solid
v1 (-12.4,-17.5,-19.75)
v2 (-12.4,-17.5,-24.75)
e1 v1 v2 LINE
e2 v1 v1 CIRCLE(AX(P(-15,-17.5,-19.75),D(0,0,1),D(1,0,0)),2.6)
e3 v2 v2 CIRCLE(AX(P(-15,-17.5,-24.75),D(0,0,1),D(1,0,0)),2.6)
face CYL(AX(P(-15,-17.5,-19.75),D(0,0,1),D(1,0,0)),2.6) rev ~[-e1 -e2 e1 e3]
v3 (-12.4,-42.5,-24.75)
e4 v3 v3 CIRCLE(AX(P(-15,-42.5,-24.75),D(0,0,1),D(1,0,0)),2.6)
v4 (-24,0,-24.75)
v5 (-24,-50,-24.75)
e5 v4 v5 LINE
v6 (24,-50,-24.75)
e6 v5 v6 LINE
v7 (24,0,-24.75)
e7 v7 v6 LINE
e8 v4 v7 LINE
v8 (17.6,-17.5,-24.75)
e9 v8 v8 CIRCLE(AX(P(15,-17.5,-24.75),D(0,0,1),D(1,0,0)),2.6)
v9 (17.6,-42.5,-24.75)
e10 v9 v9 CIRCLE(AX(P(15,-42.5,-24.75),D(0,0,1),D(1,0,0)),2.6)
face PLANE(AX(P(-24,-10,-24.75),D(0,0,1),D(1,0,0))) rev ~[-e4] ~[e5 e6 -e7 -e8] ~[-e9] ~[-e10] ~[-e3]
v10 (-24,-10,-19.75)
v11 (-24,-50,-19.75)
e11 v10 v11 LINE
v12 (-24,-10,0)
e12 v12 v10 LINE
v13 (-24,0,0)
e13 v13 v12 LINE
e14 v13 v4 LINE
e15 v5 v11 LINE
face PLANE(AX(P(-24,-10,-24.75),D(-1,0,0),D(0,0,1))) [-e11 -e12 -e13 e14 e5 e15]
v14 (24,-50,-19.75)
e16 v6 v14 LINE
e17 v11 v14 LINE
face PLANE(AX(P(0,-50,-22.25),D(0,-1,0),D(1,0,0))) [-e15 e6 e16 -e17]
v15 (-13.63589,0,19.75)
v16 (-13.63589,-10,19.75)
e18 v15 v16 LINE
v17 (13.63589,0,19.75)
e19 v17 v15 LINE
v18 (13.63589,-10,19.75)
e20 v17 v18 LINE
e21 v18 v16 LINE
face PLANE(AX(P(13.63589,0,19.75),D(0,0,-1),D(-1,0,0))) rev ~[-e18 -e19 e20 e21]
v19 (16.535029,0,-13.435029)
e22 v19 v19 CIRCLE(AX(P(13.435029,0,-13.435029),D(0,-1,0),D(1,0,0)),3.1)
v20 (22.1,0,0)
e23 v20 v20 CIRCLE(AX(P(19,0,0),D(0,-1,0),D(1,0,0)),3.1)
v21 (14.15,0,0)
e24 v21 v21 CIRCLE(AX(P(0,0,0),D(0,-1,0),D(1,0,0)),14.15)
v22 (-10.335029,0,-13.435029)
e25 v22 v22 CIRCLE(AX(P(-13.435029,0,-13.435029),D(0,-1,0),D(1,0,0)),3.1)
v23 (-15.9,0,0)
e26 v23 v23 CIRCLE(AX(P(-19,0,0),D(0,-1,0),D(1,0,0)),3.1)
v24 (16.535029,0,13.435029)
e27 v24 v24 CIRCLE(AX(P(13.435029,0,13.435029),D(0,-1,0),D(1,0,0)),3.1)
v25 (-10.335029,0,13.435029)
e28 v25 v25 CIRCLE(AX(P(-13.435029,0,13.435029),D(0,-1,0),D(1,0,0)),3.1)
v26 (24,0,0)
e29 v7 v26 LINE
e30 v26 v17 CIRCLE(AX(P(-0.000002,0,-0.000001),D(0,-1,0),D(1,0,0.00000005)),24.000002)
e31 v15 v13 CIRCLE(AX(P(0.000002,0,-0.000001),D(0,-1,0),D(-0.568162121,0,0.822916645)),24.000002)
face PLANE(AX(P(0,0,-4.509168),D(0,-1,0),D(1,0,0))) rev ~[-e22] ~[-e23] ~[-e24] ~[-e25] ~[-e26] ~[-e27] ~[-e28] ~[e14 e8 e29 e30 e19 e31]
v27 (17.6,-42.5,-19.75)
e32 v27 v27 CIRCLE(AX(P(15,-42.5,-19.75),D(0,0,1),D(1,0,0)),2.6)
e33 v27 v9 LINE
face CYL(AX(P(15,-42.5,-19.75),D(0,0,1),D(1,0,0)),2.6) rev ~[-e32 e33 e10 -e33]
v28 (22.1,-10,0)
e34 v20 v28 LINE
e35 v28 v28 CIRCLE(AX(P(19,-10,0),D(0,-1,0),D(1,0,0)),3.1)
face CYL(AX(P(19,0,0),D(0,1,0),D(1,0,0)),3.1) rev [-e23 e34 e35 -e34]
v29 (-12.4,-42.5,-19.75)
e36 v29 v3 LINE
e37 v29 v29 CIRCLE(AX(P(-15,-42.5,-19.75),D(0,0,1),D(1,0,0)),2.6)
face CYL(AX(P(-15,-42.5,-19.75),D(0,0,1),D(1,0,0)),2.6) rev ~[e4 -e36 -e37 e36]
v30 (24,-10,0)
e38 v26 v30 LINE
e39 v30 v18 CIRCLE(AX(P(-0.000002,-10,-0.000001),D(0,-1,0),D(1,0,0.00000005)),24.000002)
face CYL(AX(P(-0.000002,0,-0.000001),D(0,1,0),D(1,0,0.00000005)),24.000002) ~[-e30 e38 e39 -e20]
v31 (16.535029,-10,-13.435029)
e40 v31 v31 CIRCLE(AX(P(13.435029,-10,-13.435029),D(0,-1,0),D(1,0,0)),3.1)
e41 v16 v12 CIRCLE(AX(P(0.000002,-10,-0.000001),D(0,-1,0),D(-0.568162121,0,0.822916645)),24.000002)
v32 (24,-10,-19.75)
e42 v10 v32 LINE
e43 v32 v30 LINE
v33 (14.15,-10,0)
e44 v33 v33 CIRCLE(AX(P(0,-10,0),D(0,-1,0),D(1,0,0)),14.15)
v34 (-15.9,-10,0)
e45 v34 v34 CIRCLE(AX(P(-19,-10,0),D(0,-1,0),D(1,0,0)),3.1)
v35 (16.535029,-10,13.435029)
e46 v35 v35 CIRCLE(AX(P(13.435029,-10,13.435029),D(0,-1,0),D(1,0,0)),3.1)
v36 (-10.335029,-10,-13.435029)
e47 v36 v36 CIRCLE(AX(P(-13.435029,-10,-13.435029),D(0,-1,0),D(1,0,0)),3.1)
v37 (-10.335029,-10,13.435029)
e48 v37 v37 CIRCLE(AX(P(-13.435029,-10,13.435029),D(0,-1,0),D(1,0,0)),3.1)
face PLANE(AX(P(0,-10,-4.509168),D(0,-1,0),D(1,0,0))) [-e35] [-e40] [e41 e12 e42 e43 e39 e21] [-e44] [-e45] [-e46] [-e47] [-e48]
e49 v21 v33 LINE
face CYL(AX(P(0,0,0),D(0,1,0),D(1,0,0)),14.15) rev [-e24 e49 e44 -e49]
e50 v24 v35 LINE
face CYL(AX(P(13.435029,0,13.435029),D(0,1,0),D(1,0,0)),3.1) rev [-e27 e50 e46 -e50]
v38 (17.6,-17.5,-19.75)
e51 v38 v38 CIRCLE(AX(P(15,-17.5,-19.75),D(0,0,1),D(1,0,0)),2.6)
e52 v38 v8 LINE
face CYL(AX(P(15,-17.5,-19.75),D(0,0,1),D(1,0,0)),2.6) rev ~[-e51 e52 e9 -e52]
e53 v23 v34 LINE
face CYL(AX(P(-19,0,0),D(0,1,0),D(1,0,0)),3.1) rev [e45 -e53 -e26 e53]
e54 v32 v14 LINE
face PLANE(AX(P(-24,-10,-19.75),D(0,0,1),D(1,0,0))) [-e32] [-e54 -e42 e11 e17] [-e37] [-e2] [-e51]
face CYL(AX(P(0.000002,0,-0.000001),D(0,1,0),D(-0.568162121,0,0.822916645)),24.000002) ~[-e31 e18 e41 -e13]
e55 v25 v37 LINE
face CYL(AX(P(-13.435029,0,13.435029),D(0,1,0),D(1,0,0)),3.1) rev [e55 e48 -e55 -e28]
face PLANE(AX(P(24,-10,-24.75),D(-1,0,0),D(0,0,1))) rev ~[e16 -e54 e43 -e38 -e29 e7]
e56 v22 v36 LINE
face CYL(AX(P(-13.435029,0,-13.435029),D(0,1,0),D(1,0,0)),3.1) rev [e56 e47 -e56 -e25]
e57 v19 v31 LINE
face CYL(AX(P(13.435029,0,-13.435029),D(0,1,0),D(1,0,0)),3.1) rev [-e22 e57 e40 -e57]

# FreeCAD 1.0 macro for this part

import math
import FreeCAD as App
import Part
import Sketcher

doc = App.newDocument("Part")
params = doc.addObject("Spreadsheet::Sheet", "Params")
for row, (alias, value) in enumerate([
    ("sketch1_diameter", "6.2 mm"),
    ("sketch1_diameter2", "28.3 mm"),
    ("sketch1_width", "48 mm"),
    ("sketch1_height", "24.75 mm"),
    ("pad1_length", "10 mm"),
    ("sketch2_width", "48 mm"),
    ("sketch2_height", "5 mm"),
    ("pad2_length", "40 mm"),
    ("sketch3_diameter", "5.2 mm"),
], start=1):
    params.set(f"A{row}", alias)
    params.set(f"B{row}", "=" + value)
    params.setAlias(f"B{row}", alias)

body = doc.addObject("PartDesign::Body", "Body")

sketch1 = body.newObject("Sketcher::SketchObject", "Sketch")
sketch1.AttachmentSupport = (doc.getObject("XZ_Plane"), [""])
sketch1.MapMode = "FlatFace"
sketch1.addGeometry([
    Part.LineSegment(App.Vector(13.63589, 19.75, 0), App.Vector(-13.63589, 19.75, 0)),
    Part.ArcOfCircle(Part.Circle(App.Vector(0.000002, -0.000001, 0), App.Vector(0, 0, 1), 24.000002), math.radians(124.622164), math.radians(179.999997)),
    Part.LineSegment(App.Vector(-24, 0, 0), App.Vector(-24, -24.75, 0)),
    Part.LineSegment(App.Vector(-24, -24.75, 0), App.Vector(24, -24.75, 0)),
    Part.LineSegment(App.Vector(24, -24.75, 0), App.Vector(24, 0, 0)),
    Part.ArcOfCircle(Part.Circle(App.Vector(-0.000002, -0.000001, 0), App.Vector(0, 0, 1), 24.000002), math.radians(0.000003), math.radians(55.377836)),
    Part.Circle(App.Vector(-13.435029, -13.435029, 0), App.Vector(0, 0, 1), 3.1),
    Part.Circle(App.Vector(13.435029, -13.435029, 0), App.Vector(0, 0, 1), 3.1),
    Part.Circle(App.Vector(-19, 0, 0), App.Vector(0, 0, 1), 3.1),
    Part.Circle(App.Vector(-13.435029, 13.435029, 0), App.Vector(0, 0, 1), 3.1),
    Part.Circle(App.Vector(0, 0, 0), App.Vector(0, 0, 1), 14.15),
    Part.Circle(App.Vector(19, 0, 0), App.Vector(0, 0, 1), 3.1),
    Part.Circle(App.Vector(13.435029, 13.435029, 0), App.Vector(0, 0, 1), 3.1),
], False)
sketch1.addConstraint([
    Sketcher.Constraint("Coincident", 0, 2, 1, 1),
    Sketcher.Constraint("Tangent", 1, 2, 2, 1),
    Sketcher.Constraint("Coincident", 2, 2, 3, 1),
    Sketcher.Constraint("Coincident", 3, 2, 4, 1),
    Sketcher.Constraint("Tangent", 4, 2, 5, 1),
    Sketcher.Constraint("Coincident", 5, 2, 0, 1),
    Sketcher.Constraint("Horizontal", 0),
    Sketcher.Constraint("Vertical", 2),
    Sketcher.Constraint("Horizontal", 3),
    Sketcher.Constraint("Vertical", 4),
    Sketcher.Constraint("Coincident", 1, 3, -1, 1),
    Sketcher.Constraint("Coincident", 5, 3, -1, 1),
    Sketcher.Constraint("Coincident", 10, 3, -1, 1),
    Sketcher.Constraint("Equal", 1, 5),
    Sketcher.Constraint("Equal", 6, 7),
    Sketcher.Constraint("Equal", 7, 8),
    Sketcher.Constraint("Equal", 8, 9),
    Sketcher.Constraint("Equal", 9, 11),
    Sketcher.Constraint("Equal", 11, 12),
    Sketcher.Constraint("Symmetric", 7, 3, 9, 3, -1, 1),
    Sketcher.Constraint("Symmetric", 8, 3, 11, 3, -1, 1),
    Sketcher.Constraint("Symmetric", 6, 3, 12, 3, -1, 1),
    Sketcher.Constraint("Symmetric", 6, 3, 7, 3, -2),
    Sketcher.Constraint("PointOnObject", 8, 3, -1),
    Sketcher.Constraint("Diameter", 6, 6.2),
    Sketcher.Constraint("Diameter", 10, 28.3),
    Sketcher.Constraint("DistanceX", 3, 1, 3, 2, 48.0),
    Sketcher.Constraint("DistanceX", 8, 3, -1, 1, 19.0),
    Sketcher.Constraint("DistanceY", 2, 2, 2, 1, 24.75),
    Sketcher.Constraint("DistanceY", -1, 1, 0, 2, 19.75),
    Sketcher.Constraint("DistanceX", 6, 3, -1, 1, 13.435029),
    Sketcher.Constraint("DistanceY", 6, 3, -1, 1, 13.435029),
])
sketch1.setExpression("Constraints[24]", "Params.sketch1_diameter")
sketch1.setExpression("Constraints[25]", "Params.sketch1_diameter2")
sketch1.setExpression("Constraints[26]", "Params.sketch1_width")
sketch1.setExpression("Constraints[28]", "Params.sketch1_height")
pad1 = body.newObject("PartDesign::Pad", "Pad")
pad1.Profile = sketch1
pad1.setExpression("Length", "Params.pad1_length")

sketch2 = body.newObject("Sketcher::SketchObject", "Sketch001")
sketch2.AttachmentSupport = (doc.getObject("XZ_Plane"), [""])
sketch2.MapMode = "FlatFace"
sketch2.AttachmentOffset = App.Placement(App.Vector(0, 0, 10), App.Rotation())
sketch2.addGeometry([
    Part.LineSegment(App.Vector(-24, -19.75, 0), App.Vector(-24, -24.75, 0)),
    Part.LineSegment(App.Vector(-24, -24.75, 0), App.Vector(24, -24.75, 0)),
    Part.LineSegment(App.Vector(24, -24.75, 0), App.Vector(24, -19.75, 0)),
    Part.LineSegment(App.Vector(24, -19.75, 0), App.Vector(-24, -19.75, 0)),
], False)
sketch2.addConstraint([
    Sketcher.Constraint("Coincident", 0, 2, 1, 1),
    Sketcher.Constraint("Coincident", 1, 2, 2, 1),
    Sketcher.Constraint("Coincident", 2, 2, 3, 1),
    Sketcher.Constraint("Coincident", 3, 2, 0, 1),
    Sketcher.Constraint("Vertical", 0),
    Sketcher.Constraint("Horizontal", 1),
    Sketcher.Constraint("Vertical", 2),
    Sketcher.Constraint("Horizontal", 3),
    Sketcher.Constraint("DistanceX", 1, 1, 1, 2, 48.0),
    Sketcher.Constraint("DistanceY", 0, 2, 0, 1, 5.0),
    Sketcher.Constraint("DistanceX", 0, 2, -1, 1, 24.0),
    Sketcher.Constraint("DistanceY", 0, 2, -1, 1, 24.75),
])
sketch2.setExpression("Constraints[8]", "Params.sketch2_width")
sketch2.setExpression("Constraints[9]", "Params.sketch2_height")
pad2 = body.newObject("PartDesign::Pad", "Pad001")
pad2.Profile = sketch2
pad2.setExpression("Length", "Params.pad2_length")

sketch3 = body.newObject("Sketcher::SketchObject", "Sketch002")
sketch3.AttachmentSupport = (doc.getObject("XY_Plane"), [""])
sketch3.MapMode = "FlatFace"
sketch3.AttachmentOffset = App.Placement(App.Vector(0, 0, -19.75), App.Rotation())
sketch3.addGeometry([
    Part.Circle(App.Vector(-15, -17.5, 0), App.Vector(0, 0, 1), 2.6),
    Part.Circle(App.Vector(-15, -42.5, 0), App.Vector(0, 0, 1), 2.6),
    Part.Circle(App.Vector(15, -42.5, 0), App.Vector(0, 0, 1), 2.6),
    Part.Circle(App.Vector(15, -17.5, 0), App.Vector(0, 0, 1), 2.6),
], False)
sketch3.addConstraint([
    Sketcher.Constraint("Equal", 0, 1),
    Sketcher.Constraint("Equal", 1, 2),
    Sketcher.Constraint("Equal", 2, 3),
    Sketcher.Constraint("Symmetric", 1, 3, 2, 3, -2),
    Sketcher.Constraint("Symmetric", 0, 3, 3, 3, -2),
    Sketcher.Constraint("Vertical", 0, 3, 1, 3),
    Sketcher.Constraint("Diameter", 0, 5.2),
    Sketcher.Constraint("DistanceX", 0, 3, -1, 1, 15.0),
    Sketcher.Constraint("DistanceY", 1, 3, 0, 3, 25.0),
    Sketcher.Constraint("DistanceY", 0, 3, -1, 1, 17.5),
])
sketch3.setExpression("Constraints[6]", "Params.sketch3_diameter")
pocket1 = body.newObject("PartDesign::Pocket", "Pocket")
pocket1.Profile = sketch3
pocket1.Type = "ThroughAll"

doc.recompute()
